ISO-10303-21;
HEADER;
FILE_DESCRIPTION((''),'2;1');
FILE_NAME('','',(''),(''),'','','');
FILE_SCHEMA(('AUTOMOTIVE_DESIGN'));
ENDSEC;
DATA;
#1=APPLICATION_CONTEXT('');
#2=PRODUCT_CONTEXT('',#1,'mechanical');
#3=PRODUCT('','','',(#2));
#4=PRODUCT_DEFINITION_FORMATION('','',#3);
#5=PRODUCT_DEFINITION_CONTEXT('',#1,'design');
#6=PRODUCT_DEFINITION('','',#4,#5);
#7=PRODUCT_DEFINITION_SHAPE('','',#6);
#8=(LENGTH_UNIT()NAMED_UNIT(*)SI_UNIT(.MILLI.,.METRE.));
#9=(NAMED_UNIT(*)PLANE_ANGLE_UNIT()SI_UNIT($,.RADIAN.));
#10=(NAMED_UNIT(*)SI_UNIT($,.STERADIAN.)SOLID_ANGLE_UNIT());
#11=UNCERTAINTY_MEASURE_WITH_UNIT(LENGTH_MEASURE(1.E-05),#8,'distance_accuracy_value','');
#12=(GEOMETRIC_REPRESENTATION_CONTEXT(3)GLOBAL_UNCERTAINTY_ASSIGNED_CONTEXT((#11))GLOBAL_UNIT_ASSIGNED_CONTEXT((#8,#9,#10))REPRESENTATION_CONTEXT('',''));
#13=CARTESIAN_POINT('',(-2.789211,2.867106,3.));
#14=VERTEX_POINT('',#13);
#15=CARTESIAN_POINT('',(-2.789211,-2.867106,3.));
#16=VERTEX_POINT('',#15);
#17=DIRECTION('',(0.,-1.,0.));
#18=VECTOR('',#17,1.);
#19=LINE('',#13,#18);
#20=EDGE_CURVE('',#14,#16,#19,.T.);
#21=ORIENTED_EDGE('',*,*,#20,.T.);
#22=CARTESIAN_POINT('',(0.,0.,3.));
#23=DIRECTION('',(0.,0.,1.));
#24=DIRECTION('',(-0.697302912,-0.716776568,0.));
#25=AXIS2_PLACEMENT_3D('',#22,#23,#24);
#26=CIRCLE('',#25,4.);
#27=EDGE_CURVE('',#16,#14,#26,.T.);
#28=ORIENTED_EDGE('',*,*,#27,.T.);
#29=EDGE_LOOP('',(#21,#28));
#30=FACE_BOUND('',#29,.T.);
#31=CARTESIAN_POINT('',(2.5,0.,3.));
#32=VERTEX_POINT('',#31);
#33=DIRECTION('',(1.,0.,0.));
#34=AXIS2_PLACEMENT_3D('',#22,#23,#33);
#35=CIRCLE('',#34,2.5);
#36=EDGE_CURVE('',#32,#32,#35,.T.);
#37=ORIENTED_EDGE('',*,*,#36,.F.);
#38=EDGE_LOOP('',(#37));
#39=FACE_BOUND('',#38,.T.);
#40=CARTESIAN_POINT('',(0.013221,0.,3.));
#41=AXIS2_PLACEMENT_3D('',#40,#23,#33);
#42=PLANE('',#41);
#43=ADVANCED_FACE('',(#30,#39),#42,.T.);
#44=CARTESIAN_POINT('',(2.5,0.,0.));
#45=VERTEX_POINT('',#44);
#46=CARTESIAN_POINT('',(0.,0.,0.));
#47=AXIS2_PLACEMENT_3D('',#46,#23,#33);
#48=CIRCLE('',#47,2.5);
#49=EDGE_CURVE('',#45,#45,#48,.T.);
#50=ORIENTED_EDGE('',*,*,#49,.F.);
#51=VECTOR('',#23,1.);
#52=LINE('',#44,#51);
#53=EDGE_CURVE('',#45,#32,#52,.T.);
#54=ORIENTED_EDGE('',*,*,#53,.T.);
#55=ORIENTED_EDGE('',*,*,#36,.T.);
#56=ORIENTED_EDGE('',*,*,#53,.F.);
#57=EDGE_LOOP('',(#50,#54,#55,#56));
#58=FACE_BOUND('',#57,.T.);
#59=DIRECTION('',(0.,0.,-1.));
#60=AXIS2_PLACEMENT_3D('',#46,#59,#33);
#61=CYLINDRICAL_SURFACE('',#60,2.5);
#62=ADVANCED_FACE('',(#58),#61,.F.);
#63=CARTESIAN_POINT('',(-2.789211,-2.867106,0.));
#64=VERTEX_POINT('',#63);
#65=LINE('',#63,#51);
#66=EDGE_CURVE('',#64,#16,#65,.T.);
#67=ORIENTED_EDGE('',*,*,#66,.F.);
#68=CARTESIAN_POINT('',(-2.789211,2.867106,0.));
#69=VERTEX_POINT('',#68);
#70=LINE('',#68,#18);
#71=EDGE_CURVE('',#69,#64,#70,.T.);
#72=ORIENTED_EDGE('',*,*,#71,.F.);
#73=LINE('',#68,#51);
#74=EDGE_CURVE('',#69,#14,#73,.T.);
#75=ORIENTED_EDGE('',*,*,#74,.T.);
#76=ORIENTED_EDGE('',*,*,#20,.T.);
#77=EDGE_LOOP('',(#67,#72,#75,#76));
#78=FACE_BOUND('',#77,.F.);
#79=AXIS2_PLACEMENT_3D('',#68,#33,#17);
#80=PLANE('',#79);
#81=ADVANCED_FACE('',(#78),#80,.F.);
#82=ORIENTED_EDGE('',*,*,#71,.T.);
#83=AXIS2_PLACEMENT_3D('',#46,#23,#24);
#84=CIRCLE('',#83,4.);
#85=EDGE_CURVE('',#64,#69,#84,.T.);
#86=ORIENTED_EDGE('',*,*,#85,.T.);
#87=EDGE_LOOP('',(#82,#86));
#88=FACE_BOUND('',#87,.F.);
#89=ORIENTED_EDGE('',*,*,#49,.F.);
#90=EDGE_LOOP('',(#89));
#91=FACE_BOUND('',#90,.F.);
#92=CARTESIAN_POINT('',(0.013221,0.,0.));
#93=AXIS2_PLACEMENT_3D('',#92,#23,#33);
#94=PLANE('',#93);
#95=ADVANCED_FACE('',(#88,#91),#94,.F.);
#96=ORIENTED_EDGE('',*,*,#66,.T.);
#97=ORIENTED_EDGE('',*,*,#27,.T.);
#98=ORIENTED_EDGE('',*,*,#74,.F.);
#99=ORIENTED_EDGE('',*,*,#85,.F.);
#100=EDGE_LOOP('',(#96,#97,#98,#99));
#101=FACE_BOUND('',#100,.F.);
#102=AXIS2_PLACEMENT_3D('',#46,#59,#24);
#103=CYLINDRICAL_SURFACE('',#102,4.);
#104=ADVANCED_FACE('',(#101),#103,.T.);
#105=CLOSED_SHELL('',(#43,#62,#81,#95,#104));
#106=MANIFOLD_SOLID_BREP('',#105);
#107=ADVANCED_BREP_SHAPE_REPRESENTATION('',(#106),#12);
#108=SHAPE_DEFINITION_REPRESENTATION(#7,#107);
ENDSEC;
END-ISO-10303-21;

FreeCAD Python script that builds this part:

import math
import FreeCAD as App
import Part
import Sketcher

doc = App.newDocument("Part")
body = doc.addObject("PartDesign::Body", "Body")

# Sketch on XY plane
sketch1 = doc.addObject("Sketcher::SketchObject", "Sketch")
body.addObject(sketch1)
sketch1.AttachmentSupport = (doc.XY_Plane, [""])
sketch1.MapMode = "FlatFace"
sketch1.addGeometry([
    Part.ArcOfCircle(Part.Circle(App.Vector(0, 0, 0), App.Vector(0, 0, 1), 4), math.radians(-134.211015), math.radians(134.211015)),
    Part.LineSegment(App.Vector(-2.789211, 2.867106, 0), App.Vector(-2.789211, -2.867106, 0)),
    Part.Circle(App.Vector(0, 0, 0), App.Vector(0, 0, 1), 2.5),
], False)
sketch1.addConstraint([
    Sketcher.Constraint("Coincident", 0, 1, 1, 2),
    Sketcher.Constraint("Coincident", 1, 1, 0, 2),
    Sketcher.Constraint("Vertical", 1),
    Sketcher.Constraint("Coincident", 0, 3, -1, 1),
    Sketcher.Constraint("Coincident", 2, 3, -1, 1),
    Sketcher.Constraint("Diameter", 2, 5.0),
    Sketcher.Constraint("Radius", 0, 4.0),
    Sketcher.Constraint("DistanceY", 1, 2, 1, 1, 5.734212),
])
pad1 = doc.addObject("PartDesign::Pad", "Pad")
body.addObject(pad1)
pad1.Profile = sketch1
pad1.Length = 3

doc.recompute()
